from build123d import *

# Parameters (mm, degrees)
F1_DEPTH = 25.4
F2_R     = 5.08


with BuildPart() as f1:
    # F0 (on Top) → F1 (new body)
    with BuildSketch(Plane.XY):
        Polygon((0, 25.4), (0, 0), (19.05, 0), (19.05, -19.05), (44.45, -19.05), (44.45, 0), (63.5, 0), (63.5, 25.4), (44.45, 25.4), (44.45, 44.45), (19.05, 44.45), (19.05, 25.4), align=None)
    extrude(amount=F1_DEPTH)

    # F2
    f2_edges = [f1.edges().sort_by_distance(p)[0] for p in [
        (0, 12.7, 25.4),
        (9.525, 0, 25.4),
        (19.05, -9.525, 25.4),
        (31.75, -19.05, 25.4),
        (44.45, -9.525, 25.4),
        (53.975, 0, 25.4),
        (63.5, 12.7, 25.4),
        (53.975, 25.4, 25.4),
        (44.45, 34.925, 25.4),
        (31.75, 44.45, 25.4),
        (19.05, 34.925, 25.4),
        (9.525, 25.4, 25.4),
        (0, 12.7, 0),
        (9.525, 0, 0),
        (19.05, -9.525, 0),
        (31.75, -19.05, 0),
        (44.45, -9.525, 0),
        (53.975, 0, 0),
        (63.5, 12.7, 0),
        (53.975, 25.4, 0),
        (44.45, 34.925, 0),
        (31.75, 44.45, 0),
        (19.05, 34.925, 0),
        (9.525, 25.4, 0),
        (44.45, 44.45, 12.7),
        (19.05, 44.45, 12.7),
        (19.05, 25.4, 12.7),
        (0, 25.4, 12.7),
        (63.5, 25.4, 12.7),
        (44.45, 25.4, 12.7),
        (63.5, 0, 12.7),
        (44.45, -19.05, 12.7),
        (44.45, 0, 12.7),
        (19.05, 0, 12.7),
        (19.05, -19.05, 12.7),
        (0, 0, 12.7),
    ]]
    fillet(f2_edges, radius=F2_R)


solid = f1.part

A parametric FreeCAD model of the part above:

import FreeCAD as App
import Part
import Sketcher
from FreeCAD import Vector
Q = App.Units.Quantity

doc = App.newDocument("Part")
body = doc.addObject("PartDesign::Body", "Body")

# Sketch on XY plane
sketch1 = body.newObject("Sketcher::SketchObject", "Sketch")
sketch1.AttachmentSupport = (doc.getObject("XY_Plane"), [""])
sketch1.MapMode = "FlatFace"
sketch1.addGeometry([
    Part.LineSegment(Vector(0, 25, 0), Vector(0, 0, 0)),  # 0
    Part.LineSegment(Vector(0, 0, 0), Vector(19, 0, 0)),  # 1
    Part.LineSegment(Vector(19, 0, 0), Vector(19, -19, 0)),  # 2
    Part.LineSegment(Vector(19, -19, 0), Vector(44, -19, 0)),  # 3
    Part.LineSegment(Vector(44, -19, 0), Vector(44, 0, 0)),  # 4
    Part.LineSegment(Vector(44, 0, 0), Vector(64, 0, 0)),  # 5
    Part.LineSegment(Vector(64, 0, 0), Vector(64, 25, 0)),  # 6
    Part.LineSegment(Vector(64, 25, 0), Vector(44, 25, 0)),  # 7
    Part.LineSegment(Vector(44, 25, 0), Vector(44, 44, 0)),  # 8
    Part.LineSegment(Vector(44, 44, 0), Vector(19, 44, 0)),  # 9
    Part.LineSegment(Vector(19, 44, 0), Vector(19, 25, 0)),  # 10
    Part.LineSegment(Vector(19, 25, 0), Vector(0, 25, 0)),  # 11
], False)
sketch1.addConstraint([
    Sketcher.Constraint("Coincident", 0, 2, 1, 1),
    Sketcher.Constraint("Coincident", 1, 2, 2, 1),
    Sketcher.Constraint("Coincident", 2, 2, 3, 1),
    Sketcher.Constraint("Coincident", 3, 2, 4, 1),
    Sketcher.Constraint("Coincident", 4, 2, 5, 1),
    Sketcher.Constraint("Coincident", 5, 2, 6, 1),
    Sketcher.Constraint("Coincident", 6, 2, 7, 1),
    Sketcher.Constraint("Coincident", 7, 2, 8, 1),
    Sketcher.Constraint("Coincident", 8, 2, 9, 1),
    Sketcher.Constraint("Coincident", 9, 2, 10, 1),
    Sketcher.Constraint("Coincident", 10, 2, 11, 1),
    Sketcher.Constraint("Coincident", 11, 2, 0, 1),
    Sketcher.Constraint("Vertical", 0),
    Sketcher.Constraint("Horizontal", 1),
    Sketcher.Constraint("Vertical", 2),
    Sketcher.Constraint("Horizontal", 3),
    Sketcher.Constraint("Vertical", 4),
    Sketcher.Constraint("Horizontal", 5),
    Sketcher.Constraint("Vertical", 6),
    Sketcher.Constraint("Horizontal", 7),
    Sketcher.Constraint("Vertical", 8),
    Sketcher.Constraint("Horizontal", 9),
    Sketcher.Constraint("Vertical", 10),
    Sketcher.Constraint("Horizontal", 11),
    Sketcher.Constraint("Coincident", 0, 2, -1, 1),
    Sketcher.Constraint("PointOnObject", 4, 2, -1),
    Sketcher.Constraint("Horizontal", 7, 2, 10, 2),
    Sketcher.Constraint("Vertical", 4, 2, 7, 2),
    Sketcher.Constraint("Vertical", 2, 2, 9, 2),
    Sketcher.Constraint("Equal", 1, 5),
    Sketcher.Constraint("Equal", 9, 0),
    Sketcher.Constraint("Equal", 11, 2),
    Sketcher.Constraint("Equal", 4, 8),
    Sketcher.Constraint("DistanceX", 3, 1, 3, 2, Q("1 in")),
    Sketcher.Constraint("DistanceX", 1, 1, 1, 2, Q("0.75 in")),
])
pad1 = body.newObject("PartDesign::Pad", "Pad")
pad1.Profile = sketch1
pad1.Length = Q("1 in")
doc.recompute()

fillet = body.newObject("PartDesign::Fillet", "Fillet")
fillet.Base = (pad1, ["Edge1"])
fillet.UseAllEdges = True
fillet.Radius = Q("0.2 in")

doc.recompute()
